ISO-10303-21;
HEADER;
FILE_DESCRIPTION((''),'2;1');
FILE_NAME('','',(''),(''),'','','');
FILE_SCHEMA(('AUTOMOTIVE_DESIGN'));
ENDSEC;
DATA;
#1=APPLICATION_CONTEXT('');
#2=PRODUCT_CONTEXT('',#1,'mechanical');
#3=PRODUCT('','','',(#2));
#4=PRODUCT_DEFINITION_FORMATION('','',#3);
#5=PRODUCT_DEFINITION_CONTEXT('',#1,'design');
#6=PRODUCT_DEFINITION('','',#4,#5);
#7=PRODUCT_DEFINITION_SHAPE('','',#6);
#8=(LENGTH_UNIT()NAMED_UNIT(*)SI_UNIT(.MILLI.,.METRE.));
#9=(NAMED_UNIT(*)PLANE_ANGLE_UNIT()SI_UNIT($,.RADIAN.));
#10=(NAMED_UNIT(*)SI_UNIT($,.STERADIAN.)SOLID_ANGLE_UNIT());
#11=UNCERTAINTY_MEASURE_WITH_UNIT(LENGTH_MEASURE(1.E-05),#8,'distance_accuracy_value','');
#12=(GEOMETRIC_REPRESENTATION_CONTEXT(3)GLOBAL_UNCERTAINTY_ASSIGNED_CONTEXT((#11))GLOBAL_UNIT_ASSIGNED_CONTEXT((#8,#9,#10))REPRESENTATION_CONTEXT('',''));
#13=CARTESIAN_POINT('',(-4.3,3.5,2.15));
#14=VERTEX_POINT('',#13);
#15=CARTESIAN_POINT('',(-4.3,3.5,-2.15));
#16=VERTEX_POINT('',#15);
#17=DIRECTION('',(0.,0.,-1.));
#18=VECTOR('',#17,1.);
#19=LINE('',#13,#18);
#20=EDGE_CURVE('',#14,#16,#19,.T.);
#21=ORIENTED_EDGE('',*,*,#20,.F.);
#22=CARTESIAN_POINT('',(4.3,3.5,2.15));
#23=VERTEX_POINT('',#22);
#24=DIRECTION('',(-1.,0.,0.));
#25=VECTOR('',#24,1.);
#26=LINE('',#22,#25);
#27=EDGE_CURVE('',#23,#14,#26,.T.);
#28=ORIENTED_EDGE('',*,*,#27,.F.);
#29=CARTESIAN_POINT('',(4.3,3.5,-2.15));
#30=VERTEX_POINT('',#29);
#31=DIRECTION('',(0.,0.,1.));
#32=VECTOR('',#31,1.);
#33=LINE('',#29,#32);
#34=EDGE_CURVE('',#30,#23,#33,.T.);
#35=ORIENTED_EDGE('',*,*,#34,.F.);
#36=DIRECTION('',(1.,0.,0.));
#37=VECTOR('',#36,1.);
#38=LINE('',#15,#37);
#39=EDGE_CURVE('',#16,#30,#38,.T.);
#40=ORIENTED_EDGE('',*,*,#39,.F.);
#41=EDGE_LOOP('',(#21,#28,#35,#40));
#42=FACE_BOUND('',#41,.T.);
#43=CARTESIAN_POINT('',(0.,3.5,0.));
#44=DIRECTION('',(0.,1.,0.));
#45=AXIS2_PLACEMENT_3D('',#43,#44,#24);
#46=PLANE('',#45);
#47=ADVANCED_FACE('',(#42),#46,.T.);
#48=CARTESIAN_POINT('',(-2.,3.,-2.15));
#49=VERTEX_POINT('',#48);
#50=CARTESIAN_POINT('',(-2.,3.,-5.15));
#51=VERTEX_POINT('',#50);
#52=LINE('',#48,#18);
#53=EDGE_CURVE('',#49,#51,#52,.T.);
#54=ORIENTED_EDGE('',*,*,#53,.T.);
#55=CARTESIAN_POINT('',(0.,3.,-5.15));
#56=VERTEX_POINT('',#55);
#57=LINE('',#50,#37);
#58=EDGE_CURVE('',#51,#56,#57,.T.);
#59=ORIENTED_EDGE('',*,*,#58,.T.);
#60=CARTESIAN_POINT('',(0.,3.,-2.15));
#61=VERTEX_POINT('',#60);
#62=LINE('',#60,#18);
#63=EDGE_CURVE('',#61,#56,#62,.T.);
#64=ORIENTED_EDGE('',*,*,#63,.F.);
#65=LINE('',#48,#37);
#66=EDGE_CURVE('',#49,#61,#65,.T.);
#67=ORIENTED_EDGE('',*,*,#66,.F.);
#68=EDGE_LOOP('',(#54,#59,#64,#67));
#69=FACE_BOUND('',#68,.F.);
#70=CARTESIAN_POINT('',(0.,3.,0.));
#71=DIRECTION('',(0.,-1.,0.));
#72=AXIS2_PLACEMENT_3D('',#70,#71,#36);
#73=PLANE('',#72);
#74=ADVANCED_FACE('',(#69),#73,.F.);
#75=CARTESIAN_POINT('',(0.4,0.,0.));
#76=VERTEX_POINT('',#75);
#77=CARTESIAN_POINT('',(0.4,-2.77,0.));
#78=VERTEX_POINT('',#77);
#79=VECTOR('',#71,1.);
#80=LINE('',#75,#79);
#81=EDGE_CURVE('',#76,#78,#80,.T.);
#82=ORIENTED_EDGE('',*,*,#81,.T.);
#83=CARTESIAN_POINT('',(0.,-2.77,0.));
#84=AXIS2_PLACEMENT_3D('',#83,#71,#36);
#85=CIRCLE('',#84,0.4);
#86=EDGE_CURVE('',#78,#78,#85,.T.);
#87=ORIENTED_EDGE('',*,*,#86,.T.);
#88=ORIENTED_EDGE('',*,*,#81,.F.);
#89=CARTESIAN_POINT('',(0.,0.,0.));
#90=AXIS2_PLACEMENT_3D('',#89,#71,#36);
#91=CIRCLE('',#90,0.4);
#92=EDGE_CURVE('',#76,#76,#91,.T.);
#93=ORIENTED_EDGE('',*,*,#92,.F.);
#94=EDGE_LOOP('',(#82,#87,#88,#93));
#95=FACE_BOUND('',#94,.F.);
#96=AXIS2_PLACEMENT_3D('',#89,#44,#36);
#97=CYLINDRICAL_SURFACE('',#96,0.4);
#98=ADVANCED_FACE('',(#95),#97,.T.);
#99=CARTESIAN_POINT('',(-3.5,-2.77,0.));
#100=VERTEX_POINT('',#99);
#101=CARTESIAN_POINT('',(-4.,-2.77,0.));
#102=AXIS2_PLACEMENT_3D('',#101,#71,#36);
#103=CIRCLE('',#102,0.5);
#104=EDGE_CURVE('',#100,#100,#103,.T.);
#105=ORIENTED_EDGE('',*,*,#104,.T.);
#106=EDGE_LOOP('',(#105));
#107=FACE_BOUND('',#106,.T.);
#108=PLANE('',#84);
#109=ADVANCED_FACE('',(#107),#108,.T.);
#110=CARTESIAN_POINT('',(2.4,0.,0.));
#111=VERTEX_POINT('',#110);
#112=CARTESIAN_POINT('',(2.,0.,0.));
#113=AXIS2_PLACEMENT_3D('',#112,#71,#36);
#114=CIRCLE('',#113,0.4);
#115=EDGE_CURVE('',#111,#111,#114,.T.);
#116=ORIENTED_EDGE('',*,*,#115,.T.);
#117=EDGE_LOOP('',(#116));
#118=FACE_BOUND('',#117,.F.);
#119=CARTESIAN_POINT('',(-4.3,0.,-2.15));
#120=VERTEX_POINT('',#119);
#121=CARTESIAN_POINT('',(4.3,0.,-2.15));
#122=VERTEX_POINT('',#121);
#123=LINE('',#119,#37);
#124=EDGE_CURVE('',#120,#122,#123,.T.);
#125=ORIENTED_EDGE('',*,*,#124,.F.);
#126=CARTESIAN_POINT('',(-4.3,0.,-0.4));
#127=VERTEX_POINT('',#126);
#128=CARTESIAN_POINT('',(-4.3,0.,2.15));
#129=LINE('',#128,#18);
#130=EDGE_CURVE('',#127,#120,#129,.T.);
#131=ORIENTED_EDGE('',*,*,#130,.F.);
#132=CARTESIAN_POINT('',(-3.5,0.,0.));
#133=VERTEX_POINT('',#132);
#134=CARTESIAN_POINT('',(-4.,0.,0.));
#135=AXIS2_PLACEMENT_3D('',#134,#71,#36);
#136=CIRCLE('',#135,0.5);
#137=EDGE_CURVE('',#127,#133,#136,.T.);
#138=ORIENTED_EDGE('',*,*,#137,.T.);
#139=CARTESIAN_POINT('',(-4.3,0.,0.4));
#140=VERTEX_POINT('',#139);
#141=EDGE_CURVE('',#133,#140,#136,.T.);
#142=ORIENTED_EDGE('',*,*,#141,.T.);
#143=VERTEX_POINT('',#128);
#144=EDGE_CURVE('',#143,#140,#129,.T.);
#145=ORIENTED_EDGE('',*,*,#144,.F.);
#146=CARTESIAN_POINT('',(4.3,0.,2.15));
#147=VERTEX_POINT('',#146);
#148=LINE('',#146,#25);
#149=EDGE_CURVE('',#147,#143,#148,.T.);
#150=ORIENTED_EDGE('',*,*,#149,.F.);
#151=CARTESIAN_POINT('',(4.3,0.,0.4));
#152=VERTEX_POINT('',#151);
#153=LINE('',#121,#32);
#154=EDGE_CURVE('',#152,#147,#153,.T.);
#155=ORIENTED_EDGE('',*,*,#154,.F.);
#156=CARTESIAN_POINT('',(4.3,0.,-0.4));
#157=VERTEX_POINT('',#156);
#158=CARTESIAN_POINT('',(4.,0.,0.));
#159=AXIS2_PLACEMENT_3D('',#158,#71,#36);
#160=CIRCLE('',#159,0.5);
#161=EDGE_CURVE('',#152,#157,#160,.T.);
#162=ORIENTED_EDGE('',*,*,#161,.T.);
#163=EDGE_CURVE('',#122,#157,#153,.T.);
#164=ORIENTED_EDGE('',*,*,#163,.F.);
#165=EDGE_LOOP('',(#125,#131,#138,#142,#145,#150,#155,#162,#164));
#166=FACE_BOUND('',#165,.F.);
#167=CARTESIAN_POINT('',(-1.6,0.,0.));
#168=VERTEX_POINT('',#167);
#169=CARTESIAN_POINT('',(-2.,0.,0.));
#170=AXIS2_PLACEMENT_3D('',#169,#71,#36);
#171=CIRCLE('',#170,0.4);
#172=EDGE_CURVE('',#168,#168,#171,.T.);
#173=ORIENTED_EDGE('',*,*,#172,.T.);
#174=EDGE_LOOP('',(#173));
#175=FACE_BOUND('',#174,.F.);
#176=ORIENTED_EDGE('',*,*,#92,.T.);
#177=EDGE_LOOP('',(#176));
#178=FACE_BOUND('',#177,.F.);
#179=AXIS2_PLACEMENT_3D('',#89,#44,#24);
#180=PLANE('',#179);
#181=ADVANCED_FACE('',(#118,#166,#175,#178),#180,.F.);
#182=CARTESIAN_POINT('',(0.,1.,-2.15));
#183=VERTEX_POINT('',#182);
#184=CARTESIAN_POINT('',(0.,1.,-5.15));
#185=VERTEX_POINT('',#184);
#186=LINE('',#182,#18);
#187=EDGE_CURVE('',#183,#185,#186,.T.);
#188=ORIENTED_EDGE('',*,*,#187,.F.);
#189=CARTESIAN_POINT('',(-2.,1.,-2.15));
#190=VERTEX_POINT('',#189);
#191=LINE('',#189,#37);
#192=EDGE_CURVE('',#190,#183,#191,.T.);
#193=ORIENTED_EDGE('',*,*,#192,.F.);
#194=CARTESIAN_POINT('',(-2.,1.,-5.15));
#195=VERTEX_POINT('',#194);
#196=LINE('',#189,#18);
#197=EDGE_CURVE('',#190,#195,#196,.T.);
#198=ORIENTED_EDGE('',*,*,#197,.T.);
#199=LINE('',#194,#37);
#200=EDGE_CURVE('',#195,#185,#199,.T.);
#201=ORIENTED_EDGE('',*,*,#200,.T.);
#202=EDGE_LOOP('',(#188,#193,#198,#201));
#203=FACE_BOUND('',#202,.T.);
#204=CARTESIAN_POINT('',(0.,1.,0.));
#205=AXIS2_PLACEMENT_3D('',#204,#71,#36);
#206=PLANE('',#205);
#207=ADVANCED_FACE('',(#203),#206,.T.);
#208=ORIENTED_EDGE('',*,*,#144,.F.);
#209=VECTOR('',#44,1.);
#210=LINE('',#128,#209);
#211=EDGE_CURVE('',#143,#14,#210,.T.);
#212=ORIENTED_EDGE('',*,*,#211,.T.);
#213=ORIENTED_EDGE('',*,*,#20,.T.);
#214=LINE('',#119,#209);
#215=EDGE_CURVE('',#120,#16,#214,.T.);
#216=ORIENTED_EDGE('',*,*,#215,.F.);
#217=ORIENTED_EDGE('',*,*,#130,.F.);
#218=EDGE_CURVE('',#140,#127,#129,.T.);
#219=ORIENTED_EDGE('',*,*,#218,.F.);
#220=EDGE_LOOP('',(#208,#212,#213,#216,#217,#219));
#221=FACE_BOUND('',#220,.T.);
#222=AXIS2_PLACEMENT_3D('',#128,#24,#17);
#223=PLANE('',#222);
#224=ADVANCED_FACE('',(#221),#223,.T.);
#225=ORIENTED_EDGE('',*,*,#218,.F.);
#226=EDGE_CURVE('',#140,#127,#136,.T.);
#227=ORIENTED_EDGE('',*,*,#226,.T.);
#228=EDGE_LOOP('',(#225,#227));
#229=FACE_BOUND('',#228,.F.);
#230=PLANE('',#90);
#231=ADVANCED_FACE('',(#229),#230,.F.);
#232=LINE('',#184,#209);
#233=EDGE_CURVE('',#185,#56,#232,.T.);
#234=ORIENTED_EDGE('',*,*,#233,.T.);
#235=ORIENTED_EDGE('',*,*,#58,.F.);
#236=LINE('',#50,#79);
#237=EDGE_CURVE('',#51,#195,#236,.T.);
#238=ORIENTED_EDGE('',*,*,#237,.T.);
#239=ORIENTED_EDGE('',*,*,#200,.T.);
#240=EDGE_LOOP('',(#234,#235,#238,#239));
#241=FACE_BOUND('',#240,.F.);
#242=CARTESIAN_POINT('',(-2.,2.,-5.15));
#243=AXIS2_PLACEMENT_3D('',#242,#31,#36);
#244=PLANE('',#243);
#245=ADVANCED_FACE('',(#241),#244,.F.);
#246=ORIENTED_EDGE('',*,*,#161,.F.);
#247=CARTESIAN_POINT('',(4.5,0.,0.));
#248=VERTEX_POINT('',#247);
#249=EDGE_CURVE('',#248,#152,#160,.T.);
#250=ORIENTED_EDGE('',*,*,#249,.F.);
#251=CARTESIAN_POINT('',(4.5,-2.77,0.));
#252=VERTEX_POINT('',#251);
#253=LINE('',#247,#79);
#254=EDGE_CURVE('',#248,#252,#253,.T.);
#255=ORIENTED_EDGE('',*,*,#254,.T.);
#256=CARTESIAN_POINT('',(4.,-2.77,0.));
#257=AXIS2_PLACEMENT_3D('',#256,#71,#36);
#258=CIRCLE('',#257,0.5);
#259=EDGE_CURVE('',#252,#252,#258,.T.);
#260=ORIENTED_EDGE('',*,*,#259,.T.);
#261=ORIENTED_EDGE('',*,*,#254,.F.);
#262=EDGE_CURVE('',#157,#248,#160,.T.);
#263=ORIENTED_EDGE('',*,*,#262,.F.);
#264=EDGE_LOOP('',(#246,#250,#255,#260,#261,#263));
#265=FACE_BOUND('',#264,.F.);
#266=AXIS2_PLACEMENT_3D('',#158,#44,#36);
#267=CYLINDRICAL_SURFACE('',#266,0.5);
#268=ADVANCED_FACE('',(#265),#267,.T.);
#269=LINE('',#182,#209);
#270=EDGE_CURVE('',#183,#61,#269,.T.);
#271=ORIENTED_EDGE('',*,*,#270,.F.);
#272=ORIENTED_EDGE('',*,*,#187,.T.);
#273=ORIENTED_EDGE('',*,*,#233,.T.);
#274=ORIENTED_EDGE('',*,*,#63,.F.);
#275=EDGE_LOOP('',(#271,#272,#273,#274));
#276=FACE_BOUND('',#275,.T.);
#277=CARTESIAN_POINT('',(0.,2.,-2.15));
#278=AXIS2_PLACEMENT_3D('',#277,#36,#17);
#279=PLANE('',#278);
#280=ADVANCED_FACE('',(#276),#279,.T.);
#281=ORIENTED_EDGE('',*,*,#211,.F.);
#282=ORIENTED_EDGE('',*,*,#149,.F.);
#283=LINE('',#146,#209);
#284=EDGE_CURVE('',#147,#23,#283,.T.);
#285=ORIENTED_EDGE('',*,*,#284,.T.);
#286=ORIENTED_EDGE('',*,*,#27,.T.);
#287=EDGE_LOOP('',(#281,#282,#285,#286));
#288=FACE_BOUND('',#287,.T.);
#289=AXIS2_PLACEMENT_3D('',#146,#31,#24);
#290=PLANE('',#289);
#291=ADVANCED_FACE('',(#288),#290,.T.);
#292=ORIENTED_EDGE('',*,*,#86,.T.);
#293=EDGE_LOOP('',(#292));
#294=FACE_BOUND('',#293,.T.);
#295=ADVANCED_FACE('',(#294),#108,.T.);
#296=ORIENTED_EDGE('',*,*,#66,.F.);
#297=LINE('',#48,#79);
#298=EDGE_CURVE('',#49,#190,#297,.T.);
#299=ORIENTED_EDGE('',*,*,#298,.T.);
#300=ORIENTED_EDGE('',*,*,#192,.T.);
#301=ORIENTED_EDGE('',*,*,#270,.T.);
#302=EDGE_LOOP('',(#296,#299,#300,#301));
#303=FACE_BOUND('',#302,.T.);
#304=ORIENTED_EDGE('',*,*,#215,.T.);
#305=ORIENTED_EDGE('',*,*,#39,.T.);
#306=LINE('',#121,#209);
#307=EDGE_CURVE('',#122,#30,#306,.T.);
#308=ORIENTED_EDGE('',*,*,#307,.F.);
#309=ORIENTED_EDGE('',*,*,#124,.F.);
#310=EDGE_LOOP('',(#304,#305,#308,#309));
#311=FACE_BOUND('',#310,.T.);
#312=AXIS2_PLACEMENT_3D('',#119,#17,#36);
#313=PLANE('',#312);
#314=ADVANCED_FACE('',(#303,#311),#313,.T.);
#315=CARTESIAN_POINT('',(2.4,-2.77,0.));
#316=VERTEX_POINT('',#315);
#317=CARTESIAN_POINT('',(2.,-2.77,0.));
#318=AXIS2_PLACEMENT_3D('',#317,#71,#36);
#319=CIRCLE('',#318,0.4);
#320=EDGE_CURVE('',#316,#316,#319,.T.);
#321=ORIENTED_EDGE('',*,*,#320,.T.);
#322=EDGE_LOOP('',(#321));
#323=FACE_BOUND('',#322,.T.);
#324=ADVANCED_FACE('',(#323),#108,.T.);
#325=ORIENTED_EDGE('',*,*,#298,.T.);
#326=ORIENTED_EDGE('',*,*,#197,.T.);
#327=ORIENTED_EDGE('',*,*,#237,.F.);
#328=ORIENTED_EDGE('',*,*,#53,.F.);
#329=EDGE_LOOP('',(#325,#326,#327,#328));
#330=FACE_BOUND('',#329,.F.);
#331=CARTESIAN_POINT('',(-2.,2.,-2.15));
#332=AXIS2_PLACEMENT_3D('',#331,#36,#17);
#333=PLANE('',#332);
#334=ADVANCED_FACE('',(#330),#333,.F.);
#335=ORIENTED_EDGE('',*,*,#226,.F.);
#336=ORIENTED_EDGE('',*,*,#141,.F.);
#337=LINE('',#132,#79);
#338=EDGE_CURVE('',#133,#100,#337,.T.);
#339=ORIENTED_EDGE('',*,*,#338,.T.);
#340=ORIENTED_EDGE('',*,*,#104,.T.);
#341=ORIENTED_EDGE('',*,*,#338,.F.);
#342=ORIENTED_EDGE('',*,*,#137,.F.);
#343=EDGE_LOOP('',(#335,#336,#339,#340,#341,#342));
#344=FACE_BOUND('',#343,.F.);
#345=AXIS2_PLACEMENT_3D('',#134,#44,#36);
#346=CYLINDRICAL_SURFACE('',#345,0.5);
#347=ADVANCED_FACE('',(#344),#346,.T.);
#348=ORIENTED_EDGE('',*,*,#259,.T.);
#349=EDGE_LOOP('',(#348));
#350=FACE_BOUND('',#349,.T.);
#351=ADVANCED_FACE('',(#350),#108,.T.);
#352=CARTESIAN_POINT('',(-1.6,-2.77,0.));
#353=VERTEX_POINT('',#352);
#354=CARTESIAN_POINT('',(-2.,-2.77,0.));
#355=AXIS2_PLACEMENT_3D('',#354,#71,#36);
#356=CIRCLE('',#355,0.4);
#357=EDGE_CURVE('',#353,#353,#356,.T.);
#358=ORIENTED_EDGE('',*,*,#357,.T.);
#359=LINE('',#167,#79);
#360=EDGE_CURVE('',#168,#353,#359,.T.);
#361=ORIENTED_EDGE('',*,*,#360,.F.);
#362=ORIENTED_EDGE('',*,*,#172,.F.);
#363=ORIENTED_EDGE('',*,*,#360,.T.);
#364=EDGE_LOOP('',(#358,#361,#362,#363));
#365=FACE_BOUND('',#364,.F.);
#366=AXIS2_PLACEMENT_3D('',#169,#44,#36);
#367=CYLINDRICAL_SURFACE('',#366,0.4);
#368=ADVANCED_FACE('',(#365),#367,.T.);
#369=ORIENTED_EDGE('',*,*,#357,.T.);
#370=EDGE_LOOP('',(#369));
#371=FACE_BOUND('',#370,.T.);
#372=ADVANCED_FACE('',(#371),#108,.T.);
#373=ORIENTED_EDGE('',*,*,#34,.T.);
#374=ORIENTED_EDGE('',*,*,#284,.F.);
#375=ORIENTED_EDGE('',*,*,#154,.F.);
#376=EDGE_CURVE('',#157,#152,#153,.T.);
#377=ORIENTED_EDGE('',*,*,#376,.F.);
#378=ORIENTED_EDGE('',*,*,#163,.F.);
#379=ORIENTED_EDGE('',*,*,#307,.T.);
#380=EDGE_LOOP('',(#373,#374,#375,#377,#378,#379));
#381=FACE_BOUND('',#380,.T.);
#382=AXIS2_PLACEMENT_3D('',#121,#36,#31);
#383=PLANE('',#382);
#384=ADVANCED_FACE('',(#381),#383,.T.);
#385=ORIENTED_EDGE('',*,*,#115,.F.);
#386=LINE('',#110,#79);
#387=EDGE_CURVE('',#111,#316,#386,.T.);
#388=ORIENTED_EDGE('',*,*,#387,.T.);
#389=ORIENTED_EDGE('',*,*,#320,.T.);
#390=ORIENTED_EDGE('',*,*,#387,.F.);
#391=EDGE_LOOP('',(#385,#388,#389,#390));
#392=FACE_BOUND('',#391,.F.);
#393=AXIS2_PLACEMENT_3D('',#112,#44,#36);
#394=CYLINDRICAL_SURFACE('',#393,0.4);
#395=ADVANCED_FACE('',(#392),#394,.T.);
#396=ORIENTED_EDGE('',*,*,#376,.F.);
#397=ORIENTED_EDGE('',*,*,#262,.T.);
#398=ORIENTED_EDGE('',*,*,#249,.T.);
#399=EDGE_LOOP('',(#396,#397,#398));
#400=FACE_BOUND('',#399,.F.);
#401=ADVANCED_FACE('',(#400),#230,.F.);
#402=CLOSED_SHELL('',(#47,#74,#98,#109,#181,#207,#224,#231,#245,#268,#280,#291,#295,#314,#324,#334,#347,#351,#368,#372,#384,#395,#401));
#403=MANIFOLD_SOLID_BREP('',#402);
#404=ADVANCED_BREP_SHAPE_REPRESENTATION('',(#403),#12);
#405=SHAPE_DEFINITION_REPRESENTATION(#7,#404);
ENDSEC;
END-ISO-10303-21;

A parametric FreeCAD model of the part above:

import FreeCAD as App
import Part
import Sketcher


def add_polygon(sketch, points):
    """Adds a closed chain of lines whose ends are joined by coincident constraints."""
    first, n = sketch.GeometryCount, len(points)
    for a, b in zip(points, points[1:] + points[:1]):
        sketch.addGeometry(Part.LineSegment(App.Vector(*a, 0), App.Vector(*b, 0)), False)
    for i in range(n):
        sketch.addConstraint(Sketcher.Constraint("Coincident", first + i, 2, first + (i + 1) % n, 1))

doc = App.newDocument("Part")
params = doc.addObject("Spreadsheet::Sheet", "Params")
for row, (alias, value) in enumerate([
    ("sketch1_width", "8.6 mm"),
    ("sketch1_height", "4.3 mm"),
    ("pad1_length", "3.5 mm"),
    ("sketch2_diameter", "1 mm"),
    ("sketch2_diameter2", "0.8 mm"),
    ("pad2_length", "2.77 mm"),
    ("sketch3_width", "2 mm"),
    ("sketch3_height", "3 mm"),
    ("pad3_length", "2 mm"),
], start=1):
    params.set(f"A{row}", alias)
    params.set(f"B{row}", "=" + value)
    params.setAlias(f"B{row}", alias)

body = doc.addObject("PartDesign::Body", "Body")

# Sketch on XZ plane
sketch1 = doc.addObject("Sketcher::SketchObject", "Sketch")
body.addObject(sketch1)
sketch1.AttachmentSupport = (doc.XZ_Plane, [""])
sketch1.MapMode = "FlatFace"
add_polygon(sketch1, [(-4.3, 2.1), (4.3, 2.1), (4.3, -2.1), (-4.3, -2.1)])  # lines 0-3
sketch1.addConstraint([
    Sketcher.Constraint("Horizontal", 0),
    Sketcher.Constraint("Vertical", 1),
    Sketcher.Constraint("Horizontal", 2),
    Sketcher.Constraint("Vertical", 3),
    Sketcher.Constraint("Symmetric", 0, 2, 2, 2, -1, 1),
    Sketcher.Constraint("DistanceX", 0, 1, 0, 2, 8.6),
    Sketcher.Constraint("DistanceY", 1, 2, 1, 1, 4.3),
])
sketch1.setExpression("Constraints[9]", "Params.sketch1_width")
sketch1.setExpression("Constraints[10]", "Params.sketch1_height")
pad1 = doc.addObject("PartDesign::Pad", "Pad")
body.addObject(pad1)
pad1.Profile = sketch1
pad1.setExpression("Length", "Params.pad1_length")
pad1.Reversed = True

# Sketch on XZ plane
sketch2 = doc.addObject("Sketcher::SketchObject", "Sketch001")
body.addObject(sketch2)
sketch2.AttachmentSupport = (doc.XZ_Plane, [""])
sketch2.MapMode = "FlatFace"
sketch2.addGeometry([
    Part.Circle(App.Vector(0, 0, 0), App.Vector(0, 0, 1), 0.4),  # 0
    Part.Circle(App.Vector(2, 0, 0), App.Vector(0, 0, 1), 0.4),  # 1
    Part.Circle(App.Vector(-2, 0, 0), App.Vector(0, 0, 1), 0.4),  # 2
    Part.Circle(App.Vector(-4, 0, 0), App.Vector(0, 0, 1), 0.5),  # 3
    Part.Circle(App.Vector(4, 0, 0), App.Vector(0, 0, 1), 0.5),  # 4
], False)
sketch2.addConstraint([
    Sketcher.Constraint("Coincident", 0, 3, -1, 1),
    Sketcher.Constraint("Equal", 0, 1),
    Sketcher.Constraint("Equal", 1, 2),
    Sketcher.Constraint("Equal", 3, 4),
    Sketcher.Constraint("Symmetric", 1, 3, 2, 3, -1, 1),
    Sketcher.Constraint("Symmetric", 3, 3, 4, 3, -1, 1),
    Sketcher.Constraint("PointOnObject", 1, 3, -1),
    Sketcher.Constraint("PointOnObject", 3, 3, -1),
    Sketcher.Constraint("Diameter", 3, 1.0),
    Sketcher.Constraint("Diameter", 0, 0.8),
    Sketcher.Constraint("DistanceX", -1, 1, 1, 3, 2.0),
    Sketcher.Constraint("DistanceX", 3, 3, 2, 3, 2.0),
])
sketch2.setExpression("Constraints[8]", "Params.sketch2_diameter")
sketch2.setExpression("Constraints[9]", "Params.sketch2_diameter2")
pad2 = doc.addObject("PartDesign::Pad", "Pad001")
body.addObject(pad2)
pad2.Profile = sketch2
pad2.setExpression("Length", "Params.pad2_length")

# Sketch on XZ plane
sketch3 = doc.addObject("Sketcher::SketchObject", "Sketch002")
body.addObject(sketch3)
sketch3.AttachmentSupport = (doc.XZ_Plane, [""])
sketch3.MapMode = "FlatFace"
sketch3.AttachmentOffset = App.Placement(App.Vector(0, 0, -2), App.Rotation())
add_polygon(sketch3, [(0, -2.1), (-2, -2.1), (-2, -5.2), (0, -5.2)])  # lines 0-3
sketch3.addConstraint([
    Sketcher.Constraint("Horizontal", 0),
    Sketcher.Constraint("Vertical", 1),
    Sketcher.Constraint("Horizontal", 2),
    Sketcher.Constraint("Vertical", 3),
    Sketcher.Constraint("PointOnObject", 2, 2, -2),
    Sketcher.Constraint("DistanceX", 0, 2, 0, 1, 2.0),
    Sketcher.Constraint("DistanceY", 1, 2, 1, 1, 3.0),
    Sketcher.Constraint("DistanceY", 0, 2, -1, 1, 2.15),
])
sketch3.setExpression("Constraints[9]", "Params.sketch3_width")
sketch3.setExpression("Constraints[10]", "Params.sketch3_height")
pad3 = doc.addObject("PartDesign::Pad", "Pad002")
body.addObject(pad3)
pad3.Profile = sketch3
pad3.setExpression("Length", "Params.pad3_length")
pad3.Midplane = True

doc.recompute()
